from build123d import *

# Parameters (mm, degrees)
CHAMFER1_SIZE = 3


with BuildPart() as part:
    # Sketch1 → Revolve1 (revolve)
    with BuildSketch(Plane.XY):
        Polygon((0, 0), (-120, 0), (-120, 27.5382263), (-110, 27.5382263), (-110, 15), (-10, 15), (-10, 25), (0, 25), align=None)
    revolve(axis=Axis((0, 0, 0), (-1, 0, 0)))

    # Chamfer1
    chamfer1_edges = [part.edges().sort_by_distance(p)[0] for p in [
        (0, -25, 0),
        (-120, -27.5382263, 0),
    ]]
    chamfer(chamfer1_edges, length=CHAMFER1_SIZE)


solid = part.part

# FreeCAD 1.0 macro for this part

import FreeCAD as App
import Part
import Sketcher
from FreeCAD import Vector
Q = App.Units.Quantity


def edges_at(feature, points):
    """Names of the edges that pass closest to the given points."""
    edges = feature.Shape.Edges
    near = lambda p: min(range(len(edges)), key=lambda i: edges[i].distToShape(Part.Vertex(*p))[0])
    return sorted({f"Edge{near(p) + 1}" for p in points})


def add_polygon(sketch, points):
    """Adds a closed chain of lines whose ends are joined by coincident constraints."""
    first, n = sketch.GeometryCount, len(points)
    for a, b in zip(points, points[1:] + points[:1]):
        sketch.addGeometry(Part.LineSegment(App.Vector(*a, 0), App.Vector(*b, 0)), False)
    for i in range(n):
        sketch.addConstraint(Sketcher.Constraint("Coincident", first + i, 2, first + (i + 1) % n, 1))

doc = App.newDocument("Part")
params = doc.addObject("Spreadsheet::Sheet", "Params")
for row, (alias, value) in enumerate([
    ("sketch1_width", "120 mm"),
    ("sketch1_width2", "10 mm"),
    ("sketch1_height", "25 mm"),
    ("revolution_angle", "360 deg"),
    ("chamfer_size", "3 mm"),
], start=1):
    params.set(f"A{row}", alias)
    params.set(f"B{row}", "=" + value)
    params.setAlias(f"B{row}", alias)

body = doc.addObject("PartDesign::Body", "Body")

sketch1 = doc.addObject("Sketcher::SketchObject", "Sketch")
body.addObject(sketch1)
sketch1.AttachmentSupport = (doc.XY_Plane, [""])
sketch1.MapMode = "FlatFace"
add_polygon(sketch1, [(-120, 0), (0, 0), (0, 25), (-10, 25), (-10, 15), (-110, 15), (-110, 28), (-120, 28)])
sketch1.addConstraint(Sketcher.Constraint("Horizontal", 0))
sketch1.addConstraint(Sketcher.Constraint("Vertical", 1))
sketch1.addConstraint(Sketcher.Constraint("Horizontal", 2))
sketch1.addConstraint(Sketcher.Constraint("Vertical", 3))
sketch1.addConstraint(Sketcher.Constraint("Horizontal", 4))
sketch1.addConstraint(Sketcher.Constraint("Vertical", 5))
sketch1.addConstraint(Sketcher.Constraint("Horizontal", 6))
sketch1.addConstraint(Sketcher.Constraint("Vertical", 7))
sketch1.addConstraint(Sketcher.Constraint("Coincident", 0, 2, -1, 1))
sketch1.addConstraint(Sketcher.Constraint("Equal", 2, 6))
sketch1.addConstraint(Sketcher.Constraint("Equal", 6, 3))
sketch1.addConstraint(Sketcher.Constraint("DistanceX", 0, 1, 0, 2, Q("120 mm")))
sketch1.addConstraint(Sketcher.Constraint("DistanceX", 2, 2, 2, 1, Q("10 mm")))
sketch1.addConstraint(Sketcher.Constraint("DistanceY", 1, 1, 1, 2, Q("25 mm")))
sketch1.addConstraint(Sketcher.Constraint("DistanceY", 5, 1, 5, 2, Q("12.538226 mm")))
sketch1.setExpression("Constraints[19]", "Params.sketch1_width")
sketch1.setExpression("Constraints[20]", "Params.sketch1_width2")
sketch1.setExpression("Constraints[21]", "Params.sketch1_height")
revolution = doc.addObject("PartDesign::Revolution", "Revolution")
body.addObject(revolution)
revolution.Profile = sketch1
revolution.ReferenceAxis = (sketch1, ["H_Axis"])
revolution.setExpression("Angle", "Params.revolution_angle")
doc.recompute()

chamfer = doc.addObject("PartDesign::Chamfer", "Chamfer")
body.addObject(chamfer)
chamfer.Base = (revolution, edges_at(revolution, [(0, -25, 0), (-120, -27.538, 0)]))
chamfer.setExpression("Size", "Params.chamfer_size")

doc.recompute()
